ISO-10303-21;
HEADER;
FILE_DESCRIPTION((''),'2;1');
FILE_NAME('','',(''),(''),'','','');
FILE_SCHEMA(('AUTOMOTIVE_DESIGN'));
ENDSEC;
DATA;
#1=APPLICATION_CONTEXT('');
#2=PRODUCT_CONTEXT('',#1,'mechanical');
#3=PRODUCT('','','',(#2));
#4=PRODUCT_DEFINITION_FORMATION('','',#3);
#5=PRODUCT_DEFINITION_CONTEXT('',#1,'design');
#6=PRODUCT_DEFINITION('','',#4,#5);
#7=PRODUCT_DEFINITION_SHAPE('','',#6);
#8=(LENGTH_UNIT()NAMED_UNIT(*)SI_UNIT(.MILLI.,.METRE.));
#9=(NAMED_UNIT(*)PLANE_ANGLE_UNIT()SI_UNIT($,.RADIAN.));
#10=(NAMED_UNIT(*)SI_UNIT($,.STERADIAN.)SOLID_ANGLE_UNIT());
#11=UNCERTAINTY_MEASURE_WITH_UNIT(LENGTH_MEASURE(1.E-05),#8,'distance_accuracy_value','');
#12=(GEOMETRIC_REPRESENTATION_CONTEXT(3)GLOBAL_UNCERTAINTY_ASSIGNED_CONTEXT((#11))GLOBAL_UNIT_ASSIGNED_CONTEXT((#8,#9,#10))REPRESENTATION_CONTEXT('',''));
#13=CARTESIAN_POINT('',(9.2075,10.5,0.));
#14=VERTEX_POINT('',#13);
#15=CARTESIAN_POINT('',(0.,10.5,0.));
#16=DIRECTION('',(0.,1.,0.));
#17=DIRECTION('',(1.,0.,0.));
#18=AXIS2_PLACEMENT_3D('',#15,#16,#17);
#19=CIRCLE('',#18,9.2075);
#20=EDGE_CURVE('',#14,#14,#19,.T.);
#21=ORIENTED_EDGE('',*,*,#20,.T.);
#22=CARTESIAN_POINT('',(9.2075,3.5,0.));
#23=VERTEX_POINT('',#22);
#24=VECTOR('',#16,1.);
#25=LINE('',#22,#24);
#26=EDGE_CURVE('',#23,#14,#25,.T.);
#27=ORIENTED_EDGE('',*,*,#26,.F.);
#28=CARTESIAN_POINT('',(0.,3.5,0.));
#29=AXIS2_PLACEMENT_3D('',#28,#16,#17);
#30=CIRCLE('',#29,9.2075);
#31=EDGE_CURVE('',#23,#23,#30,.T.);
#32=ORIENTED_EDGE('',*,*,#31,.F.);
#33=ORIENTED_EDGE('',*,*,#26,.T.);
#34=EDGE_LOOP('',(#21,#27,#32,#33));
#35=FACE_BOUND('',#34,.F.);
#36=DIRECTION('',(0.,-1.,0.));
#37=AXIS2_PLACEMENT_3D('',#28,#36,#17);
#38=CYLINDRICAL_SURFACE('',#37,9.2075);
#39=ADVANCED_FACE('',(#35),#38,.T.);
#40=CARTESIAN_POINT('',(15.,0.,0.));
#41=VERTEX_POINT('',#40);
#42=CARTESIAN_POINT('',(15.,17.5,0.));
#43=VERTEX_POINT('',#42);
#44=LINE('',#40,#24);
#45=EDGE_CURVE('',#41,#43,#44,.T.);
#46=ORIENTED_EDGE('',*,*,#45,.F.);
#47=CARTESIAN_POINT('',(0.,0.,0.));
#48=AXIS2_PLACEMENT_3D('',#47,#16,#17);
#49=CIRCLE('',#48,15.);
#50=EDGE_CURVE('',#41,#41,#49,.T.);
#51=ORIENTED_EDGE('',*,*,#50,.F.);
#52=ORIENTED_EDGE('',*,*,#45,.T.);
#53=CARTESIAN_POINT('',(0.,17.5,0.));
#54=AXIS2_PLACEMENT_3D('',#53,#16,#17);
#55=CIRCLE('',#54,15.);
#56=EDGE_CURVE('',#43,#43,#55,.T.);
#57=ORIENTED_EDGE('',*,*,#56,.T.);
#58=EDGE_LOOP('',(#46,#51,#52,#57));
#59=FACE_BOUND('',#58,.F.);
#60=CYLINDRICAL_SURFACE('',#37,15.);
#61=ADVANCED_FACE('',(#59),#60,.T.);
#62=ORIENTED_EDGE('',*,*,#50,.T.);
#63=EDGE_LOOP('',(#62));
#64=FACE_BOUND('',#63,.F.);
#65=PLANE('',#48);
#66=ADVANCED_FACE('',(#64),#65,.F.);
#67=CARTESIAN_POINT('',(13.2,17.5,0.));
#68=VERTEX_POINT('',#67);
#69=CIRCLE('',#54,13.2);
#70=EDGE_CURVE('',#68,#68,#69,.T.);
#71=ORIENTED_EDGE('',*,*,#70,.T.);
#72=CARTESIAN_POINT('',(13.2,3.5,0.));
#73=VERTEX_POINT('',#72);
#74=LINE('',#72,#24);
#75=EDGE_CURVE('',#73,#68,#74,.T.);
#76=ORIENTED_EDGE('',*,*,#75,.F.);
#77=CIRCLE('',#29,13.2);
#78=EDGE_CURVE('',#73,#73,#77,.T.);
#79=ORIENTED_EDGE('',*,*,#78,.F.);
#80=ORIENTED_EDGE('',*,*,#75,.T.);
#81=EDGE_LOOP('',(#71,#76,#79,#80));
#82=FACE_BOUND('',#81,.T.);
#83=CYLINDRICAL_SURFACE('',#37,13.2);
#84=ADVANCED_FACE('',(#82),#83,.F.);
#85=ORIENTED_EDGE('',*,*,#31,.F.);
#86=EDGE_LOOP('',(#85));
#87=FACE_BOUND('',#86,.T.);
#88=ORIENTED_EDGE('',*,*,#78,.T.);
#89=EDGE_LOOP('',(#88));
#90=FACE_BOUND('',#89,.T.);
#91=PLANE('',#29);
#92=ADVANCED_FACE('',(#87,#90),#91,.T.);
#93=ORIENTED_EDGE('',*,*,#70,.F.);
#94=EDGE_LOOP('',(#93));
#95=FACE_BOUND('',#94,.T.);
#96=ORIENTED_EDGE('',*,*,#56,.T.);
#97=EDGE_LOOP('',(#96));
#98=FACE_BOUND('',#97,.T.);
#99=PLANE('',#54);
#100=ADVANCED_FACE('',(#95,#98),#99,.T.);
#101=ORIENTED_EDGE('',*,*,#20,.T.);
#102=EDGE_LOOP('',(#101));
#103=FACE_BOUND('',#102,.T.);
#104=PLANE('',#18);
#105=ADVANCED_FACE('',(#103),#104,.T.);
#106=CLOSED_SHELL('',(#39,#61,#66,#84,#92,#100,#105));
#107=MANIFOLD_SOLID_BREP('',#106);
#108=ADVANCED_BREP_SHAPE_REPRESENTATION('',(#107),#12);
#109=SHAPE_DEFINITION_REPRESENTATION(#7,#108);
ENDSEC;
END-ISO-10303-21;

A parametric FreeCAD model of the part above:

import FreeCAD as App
import Part
import Sketcher
from FreeCAD import Vector

doc = App.newDocument("Part")
body = doc.addObject("PartDesign::Body", "Body")

sketch1 = doc.addObject("Sketcher::SketchObject", "Sketch")
body.addObject(sketch1)
sketch1.AttachmentSupport = (doc.XZ_Plane, [""])
sketch1.MapMode = "FlatFace"
sketch1.addGeometry(Part.Circle(Vector(0, 0, 0), Vector(0, 0, 1), 15), False)
sketch1.addConstraint(Sketcher.Constraint("Coincident", 0, 3, -1, 1))
sketch1.addConstraint(Sketcher.Constraint("Diameter", 0, 30.0))
pad1 = doc.addObject("PartDesign::Pad", "Pad")
body.addObject(pad1)
pad1.Profile = sketch1
pad1.Length = 3.5
pad1.Reversed = True

sketch2 = doc.addObject("Sketcher::SketchObject", "Sketch001")
body.addObject(sketch2)
sketch2.AttachmentSupport = (doc.XZ_Plane, [""])
sketch2.MapMode = "FlatFace"
sketch2.AttachmentOffset = App.Placement(Vector(0, 0, -3.5), App.Rotation())
sketch2.addGeometry(Part.Circle(Vector(0, 0, 0), Vector(0, 0, 1), 9), False)
sketch2.addConstraint(Sketcher.Constraint("Coincident", 0, 3, -1, 1))
sketch2.addConstraint(Sketcher.Constraint("Diameter", 0, 18.415))
pad2 = doc.addObject("PartDesign::Pad", "Pad001")
body.addObject(pad2)
pad2.Profile = sketch2
pad2.Length = 7
pad2.Reversed = True

sketch3 = doc.addObject("Sketcher::SketchObject", "Sketch002")
body.addObject(sketch3)
sketch3.AttachmentSupport = (doc.XZ_Plane, [""])
sketch3.MapMode = "FlatFace"
sketch3.AttachmentOffset = App.Placement(Vector(0, 0, -3.5), App.Rotation())
sketch3.addGeometry(Part.Circle(Vector(0, 0, 0), Vector(0, 0, 1), 15), False)
sketch3.addGeometry(Part.Circle(Vector(0, 0, 0), Vector(0, 0, 1), 13), False)
sketch3.addConstraint(Sketcher.Constraint("Coincident", 0, 3, -1, 1))
sketch3.addConstraint(Sketcher.Constraint("Coincident", 1, 3, -1, 1))
sketch3.addConstraint(Sketcher.Constraint("Diameter", 1, 26.4))
sketch3.addConstraint(Sketcher.Constraint("Diameter", 0, 30.0))
pad3 = doc.addObject("PartDesign::Pad", "Pad002")
body.addObject(pad3)
pad3.Profile = sketch3
pad3.Length = 14
pad3.Reversed = True

doc.recompute()
